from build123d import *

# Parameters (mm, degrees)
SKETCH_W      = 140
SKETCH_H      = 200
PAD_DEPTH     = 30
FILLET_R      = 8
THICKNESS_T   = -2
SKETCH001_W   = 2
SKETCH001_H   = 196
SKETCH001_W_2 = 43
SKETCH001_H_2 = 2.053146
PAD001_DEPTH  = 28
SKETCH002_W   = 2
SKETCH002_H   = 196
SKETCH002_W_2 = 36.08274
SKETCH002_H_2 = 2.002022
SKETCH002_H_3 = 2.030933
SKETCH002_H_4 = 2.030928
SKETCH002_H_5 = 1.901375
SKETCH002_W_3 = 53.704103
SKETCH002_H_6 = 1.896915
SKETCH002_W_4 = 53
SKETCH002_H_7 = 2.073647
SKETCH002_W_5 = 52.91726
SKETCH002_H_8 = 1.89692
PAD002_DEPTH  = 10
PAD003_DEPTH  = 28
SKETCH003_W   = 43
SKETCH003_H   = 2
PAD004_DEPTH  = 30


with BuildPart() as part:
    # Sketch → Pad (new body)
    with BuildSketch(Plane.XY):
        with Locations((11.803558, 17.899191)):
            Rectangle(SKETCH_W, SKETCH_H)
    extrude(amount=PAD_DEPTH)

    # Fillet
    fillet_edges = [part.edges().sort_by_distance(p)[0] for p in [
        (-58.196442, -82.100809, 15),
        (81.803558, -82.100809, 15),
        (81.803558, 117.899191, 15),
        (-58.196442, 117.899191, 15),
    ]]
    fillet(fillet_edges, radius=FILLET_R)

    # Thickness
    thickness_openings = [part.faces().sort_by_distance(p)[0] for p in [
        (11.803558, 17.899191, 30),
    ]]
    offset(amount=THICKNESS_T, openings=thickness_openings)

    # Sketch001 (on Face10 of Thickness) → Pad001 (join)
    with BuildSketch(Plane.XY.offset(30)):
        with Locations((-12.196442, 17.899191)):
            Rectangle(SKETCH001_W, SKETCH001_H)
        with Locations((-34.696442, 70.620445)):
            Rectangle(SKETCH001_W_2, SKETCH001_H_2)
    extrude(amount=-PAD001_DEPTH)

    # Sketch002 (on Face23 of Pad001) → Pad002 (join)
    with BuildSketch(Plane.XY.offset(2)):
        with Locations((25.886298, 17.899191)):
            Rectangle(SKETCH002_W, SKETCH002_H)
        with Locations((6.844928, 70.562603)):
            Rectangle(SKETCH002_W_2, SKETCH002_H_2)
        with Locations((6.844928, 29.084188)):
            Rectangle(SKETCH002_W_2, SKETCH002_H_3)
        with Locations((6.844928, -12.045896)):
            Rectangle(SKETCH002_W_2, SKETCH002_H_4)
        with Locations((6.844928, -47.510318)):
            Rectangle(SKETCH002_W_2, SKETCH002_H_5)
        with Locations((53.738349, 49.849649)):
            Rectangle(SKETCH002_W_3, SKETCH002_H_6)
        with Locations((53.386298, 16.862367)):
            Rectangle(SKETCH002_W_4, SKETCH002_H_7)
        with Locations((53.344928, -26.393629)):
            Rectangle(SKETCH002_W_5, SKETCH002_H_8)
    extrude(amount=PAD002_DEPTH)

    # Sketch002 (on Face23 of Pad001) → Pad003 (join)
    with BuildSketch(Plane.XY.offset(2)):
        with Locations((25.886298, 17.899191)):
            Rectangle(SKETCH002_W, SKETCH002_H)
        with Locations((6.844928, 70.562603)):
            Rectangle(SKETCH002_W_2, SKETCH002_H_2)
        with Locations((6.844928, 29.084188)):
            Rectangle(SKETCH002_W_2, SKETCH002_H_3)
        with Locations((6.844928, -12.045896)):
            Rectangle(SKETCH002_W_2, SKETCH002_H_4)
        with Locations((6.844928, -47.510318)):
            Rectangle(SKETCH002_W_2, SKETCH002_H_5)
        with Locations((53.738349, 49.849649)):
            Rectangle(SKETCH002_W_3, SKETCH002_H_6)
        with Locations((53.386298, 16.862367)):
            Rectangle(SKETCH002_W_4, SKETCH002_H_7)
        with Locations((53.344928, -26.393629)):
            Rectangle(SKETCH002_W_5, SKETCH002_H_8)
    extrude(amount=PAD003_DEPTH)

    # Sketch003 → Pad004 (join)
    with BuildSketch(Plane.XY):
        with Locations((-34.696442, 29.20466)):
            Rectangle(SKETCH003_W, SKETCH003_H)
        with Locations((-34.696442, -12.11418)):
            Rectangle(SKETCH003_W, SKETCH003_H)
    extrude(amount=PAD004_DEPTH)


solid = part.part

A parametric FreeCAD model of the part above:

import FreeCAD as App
import Part
import Sketcher
Q = App.Units.Quantity


def edges_at(feature, points):
    """Names of the edges that pass closest to the given points."""
    edges = feature.Shape.Edges
    near = lambda p: min(range(len(edges)), key=lambda i: edges[i].distToShape(Part.Vertex(*p))[0])
    return sorted({f"Edge{near(p) + 1}" for p in points})


def faces_at(feature, points):
    """Names of the faces that lie closest to the given points."""
    faces = feature.Shape.Faces
    near = lambda p: min(range(len(faces)), key=lambda i: faces[i].distToShape(Part.Vertex(*p))[0])
    return sorted({f"Face{near(p) + 1}" for p in points})


def add_polygon(sketch, points):
    """Adds a closed chain of lines whose ends are joined by coincident constraints."""
    first, n = sketch.GeometryCount, len(points)
    for a, b in zip(points, points[1:] + points[:1]):
        sketch.addGeometry(Part.LineSegment(App.Vector(*a, 0), App.Vector(*b, 0)), False)
    for i in range(n):
        sketch.addConstraint(Sketcher.Constraint("Coincident", first + i, 2, first + (i + 1) % n, 1))

doc = App.newDocument("Part")
body = doc.addObject("PartDesign::Body", "Body")

# Sketch on XY plane
sketch1 = body.newObject("Sketcher::SketchObject", "Sketch")
sketch1.AttachmentSupport = (doc.getObject("XY_Plane"), [""])
sketch1.MapMode = "FlatFace"
add_polygon(sketch1, [(-58, 118), (-58, -82), (82, -82), (82, 118)])  # lines 0-3
sketch1.addConstraint(Sketcher.Constraint("Vertical", 0))
sketch1.addConstraint(Sketcher.Constraint("Horizontal", 1))
sketch1.addConstraint(Sketcher.Constraint("Vertical", 2))
sketch1.addConstraint(Sketcher.Constraint("Horizontal", 3))
sketch1.addConstraint(Sketcher.Constraint("DistanceX", 1, 1, 1, 2, Q("140 mm")))
sketch1.addConstraint(Sketcher.Constraint("DistanceY", 0, 2, 0, 1, Q("200 mm")))
sketch1.addConstraint(Sketcher.Constraint("DistanceX", 0, 2, -1, 1, Q("58.196442 mm")))
sketch1.addConstraint(Sketcher.Constraint("DistanceY", 0, 2, -1, 1, Q("82.100809 mm")))
pad1 = body.newObject("PartDesign::Pad", "Pad")
pad1.Profile = sketch1
pad1.Length = 30
doc.recompute()

fillet = body.newObject("PartDesign::Fillet", "Fillet")
fillet.Base = (pad1, edges_at(pad1, [
    (-58.196, -82.101, 15),
    (81.804, -82.101, 15),
    (81.804, 117.899, 15),
    (-58.196, 117.899, 15),
]))
fillet.Radius = 8
doc.recompute()

thickness = body.newObject("PartDesign::Thickness", "Thickness")
thickness.Base = (fillet, faces_at(fillet, [(11.804, 17.899, 30)]))
thickness.Value = 2
thickness.Reversed = True
thickness.Join = "Arc"

# Sketch on XY plane
sketch2 = body.newObject("Sketcher::SketchObject", "Sketch001")
sketch2.AttachmentSupport = (doc.getObject("XY_Plane"), [""])
sketch2.MapMode = "FlatFace"
sketch2.AttachmentOffset = App.Placement(App.Vector(0, 0, 30), App.Rotation())
add_polygon(sketch2, [(-13.2, 69.6), (-13.2, -80.1), (-11.2, -80.1), (-11.2, 115.9), (-13.2, 115.9), (-13.2, 71.6), (-56.2, 71.6), (-56.2, 69.6)])  # lines 0-7
sketch2.addConstraint(Sketcher.Constraint("Vertical", 0))
sketch2.addConstraint(Sketcher.Constraint("Horizontal", 1))
sketch2.addConstraint(Sketcher.Constraint("Vertical", 2))
sketch2.addConstraint(Sketcher.Constraint("Horizontal", 3))
sketch2.addConstraint(Sketcher.Constraint("Vertical", 4))
sketch2.addConstraint(Sketcher.Constraint("Horizontal", 5))
sketch2.addConstraint(Sketcher.Constraint("Vertical", 6))
sketch2.addConstraint(Sketcher.Constraint("Horizontal", 7))
sketch2.addConstraint(Sketcher.Constraint("Vertical", 0, 2, 3, 2))
sketch2.addConstraint(Sketcher.Constraint("DistanceX", 1, 1, 1, 2, Q("2 mm")))
sketch2.addConstraint(Sketcher.Constraint("DistanceX", 5, 2, 5, 1, Q("43 mm")))
sketch2.addConstraint(Sketcher.Constraint("DistanceY", 2, 1, 2, 2, Q("196 mm")))
sketch2.addConstraint(Sketcher.Constraint("DistanceY", 0, 2, 0, 1, Q("149.694681 mm")))
sketch2.addConstraint(Sketcher.Constraint("DistanceY", 4, 2, 4, 1, Q("44.252173 mm")))
sketch2.addConstraint(Sketcher.Constraint("DistanceX", 0, 2, -1, 1, Q("13.196442 mm")))
sketch2.addConstraint(Sketcher.Constraint("DistanceY", 0, 2, -1, 1, Q("80.100809 mm")))
pad2 = body.newObject("PartDesign::Pad", "Pad001")
pad2.Profile = sketch2
pad2.Length = 28
pad2.Reversed = True

# Sketch on XY plane
sketch3 = body.newObject("Sketcher::SketchObject", "Sketch002")
sketch3.AttachmentSupport = (doc.getObject("XY_Plane"), [""])
sketch3.MapMode = "FlatFace"
sketch3.AttachmentOffset = App.Placement(App.Vector(0, 0, 2), App.Rotation())
add_polygon(sketch3, [(24.9, -48.5), (24.9, -80.1), (26.9, -80.1), (26.9, -27.3), (79.8, -27.3), (79.8, -25.4), (26.9, -25.4), (26.9, 15.8), (79.9, 15.8), (79.9, 17.9), (26.9, 17.9), (26.9, 48.9), (80.6, 48.9), (80.6, 50.8), (26.9, 50.8), (26.9, 115.9), (24.9, 115.9), (24.9, 71.6), (-11.2, 71.6), (-11.2, 69.6), (24.9, 69.6), (24.9, 30.1), (-11.2, 30.1), (-11.2, 28.1), (24.9, 28.1), (24.9, -11), (-11.2, -11), (-11.2, -13.1), (24.9, -13.1), (24.9, -46.6), (-11.2, -46.6), (-11.2, -48.5)])  # lines 0-31
sketch3.addConstraint(Sketcher.Constraint("Vertical", 0))
sketch3.addConstraint(Sketcher.Constraint("Horizontal", 1))
sketch3.addConstraint(Sketcher.Constraint("Vertical", 2))
sketch3.addConstraint(Sketcher.Constraint("Horizontal", 3))
sketch3.addConstraint(Sketcher.Constraint("Vertical", 4))
sketch3.addConstraint(Sketcher.Constraint("Horizontal", 5))
sketch3.addConstraint(Sketcher.Constraint("Vertical", 6))
sketch3.addConstraint(Sketcher.Constraint("Horizontal", 7))
sketch3.addConstraint(Sketcher.Constraint("Vertical", 8))
sketch3.addConstraint(Sketcher.Constraint("Horizontal", 9))
sketch3.addConstraint(Sketcher.Constraint("Vertical", 10))
sketch3.addConstraint(Sketcher.Constraint("Horizontal", 11))
sketch3.addConstraint(Sketcher.Constraint("Vertical", 12))
sketch3.addConstraint(Sketcher.Constraint("Horizontal", 13))
sketch3.addConstraint(Sketcher.Constraint("Vertical", 14))
sketch3.addConstraint(Sketcher.Constraint("Horizontal", 15))
sketch3.addConstraint(Sketcher.Constraint("Vertical", 16))
sketch3.addConstraint(Sketcher.Constraint("Horizontal", 17))
sketch3.addConstraint(Sketcher.Constraint("Vertical", 18))
sketch3.addConstraint(Sketcher.Constraint("Horizontal", 19))
sketch3.addConstraint(Sketcher.Constraint("Vertical", 20))
sketch3.addConstraint(Sketcher.Constraint("Horizontal", 21))
sketch3.addConstraint(Sketcher.Constraint("Vertical", 22))
sketch3.addConstraint(Sketcher.Constraint("Horizontal", 23))
sketch3.addConstraint(Sketcher.Constraint("Vertical", 24))
sketch3.addConstraint(Sketcher.Constraint("Horizontal", 25))
sketch3.addConstraint(Sketcher.Constraint("Vertical", 26))
sketch3.addConstraint(Sketcher.Constraint("Horizontal", 27))
sketch3.addConstraint(Sketcher.Constraint("Vertical", 28))
sketch3.addConstraint(Sketcher.Constraint("Horizontal", 29))
sketch3.addConstraint(Sketcher.Constraint("Vertical", 30))
sketch3.addConstraint(Sketcher.Constraint("Horizontal", 31))
sketch3.addConstraint(Sketcher.Constraint("Vertical", 2, 2, 5, 2))
sketch3.addConstraint(Sketcher.Constraint("Vertical", 6, 2, 9, 2))
sketch3.addConstraint(Sketcher.Constraint("Vertical", 10, 2, 13, 2))
sketch3.addConstraint(Sketcher.Constraint("Vertical", 0, 2, 15, 2))
sketch3.addConstraint(Sketcher.Constraint("Vertical", 16, 2, 19, 2))
sketch3.addConstraint(Sketcher.Constraint("Vertical", 18, 2, 21, 2))
sketch3.addConstraint(Sketcher.Constraint("Vertical", 20, 2, 23, 2))
sketch3.addConstraint(Sketcher.Constraint("Vertical", 22, 2, 25, 2))
sketch3.addConstraint(Sketcher.Constraint("Vertical", 24, 2, 27, 2))
sketch3.addConstraint(Sketcher.Constraint("Vertical", 26, 2, 29, 2))
sketch3.addConstraint(Sketcher.Constraint("DistanceX", 1, 1, 1, 2, Q("2 mm")))
sketch3.addConstraint(Sketcher.Constraint("DistanceX", 7, 1, 7, 2, Q("53 mm")))
sketch3.addConstraint(Sketcher.Constraint("DistanceY", 9, 2, 14, 2, Q("98 mm")))
sketch3.addConstraint(Sketcher.Constraint("DistanceY", 10, 1, 10, 2, Q("31.002001 mm")))
sketch3.addConstraint(Sketcher.Constraint("DistanceX", 3, 1, 3, 2, Q("52.91726 mm")))
sketch3.addConstraint(Sketcher.Constraint("DistanceX", 17, 2, 17, 1, Q("36.08274 mm")))
sketch3.addConstraint(Sketcher.Constraint("DistanceY", 2, 1, 2, 2, Q("52.75872 mm")))
sketch3.addConstraint(Sketcher.Constraint("DistanceY", 4, 1, 4, 2, Q("1.89692 mm")))
sketch3.addConstraint(Sketcher.Constraint("DistanceY", 18, 2, 18, 1, Q("2.002022 mm")))
sketch3.addConstraint(Sketcher.Constraint("DistanceY", 26, 2, 26, 1, Q("2.030928 mm")))
sketch3.addConstraint(Sketcher.Constraint("DistanceY", 28, 2, 28, 1, Q("33.49827 mm")))
sketch3.addConstraint(Sketcher.Constraint("DistanceX", -1, 1, 0, 2, Q("24.886298 mm")))
sketch3.addConstraint(Sketcher.Constraint("DistanceX", -1, 1, 11, 2, Q("80.590401 mm")))
sketch3.addConstraint(Sketcher.Constraint("DistanceY", 10, 2, 18, 2, Q("20.660401 mm")))
sketch3.addConstraint(Sketcher.Constraint("DistanceY", 0, 2, 0, 1, Q("31.639803 mm")))
sketch3.addConstraint(Sketcher.Constraint("DistanceY", 6, 1, 6, 2, Q("41.270713 mm")))
sketch3.addConstraint(Sketcher.Constraint("DistanceY", 8, 1, 8, 2, Q("2.073647 mm")))
sketch3.addConstraint(Sketcher.Constraint("DistanceY", 12, 1, 12, 2, Q("1.896915 mm")))
sketch3.addConstraint(Sketcher.Constraint("DistanceY", 20, 2, 20, 1, Q("39.461938 mm")))
sketch3.addConstraint(Sketcher.Constraint("DistanceY", 22, 2, 22, 1, Q("2.030933 mm")))
sketch3.addConstraint(Sketcher.Constraint("DistanceY", 24, 2, 24, 1, Q("39.099153 mm")))
sketch3.addConstraint(Sketcher.Constraint("DistanceY", 0, 2, -1, 1, Q("80.100809 mm")))
pad3 = body.newObject("PartDesign::Pad", "Pad002")
pad3.Profile = sketch3
pad3.Length = 10

# Sketch on XY plane
sketch4 = body.newObject("Sketcher::SketchObject", "Sketch003")
sketch4.AttachmentSupport = (doc.getObject("XY_Plane"), [""])
sketch4.MapMode = "FlatFace"
sketch4.AttachmentOffset = App.Placement(App.Vector(0, 0, 2), App.Rotation())
add_polygon(sketch4, [(24.9, -48.5), (24.9, -80.1), (26.9, -80.1), (26.9, -27.3), (79.8, -27.3), (79.8, -25.4), (26.9, -25.4), (26.9, 15.8), (79.9, 15.8), (79.9, 17.9), (26.9, 17.9), (26.9, 48.9), (80.6, 48.9), (80.6, 50.8), (26.9, 50.8), (26.9, 115.9), (24.9, 115.9), (24.9, 71.6), (-11.2, 71.6), (-11.2, 69.6), (24.9, 69.6), (24.9, 30.1), (-11.2, 30.1), (-11.2, 28.1), (24.9, 28.1), (24.9, -11), (-11.2, -11), (-11.2, -13.1), (24.9, -13.1), (24.9, -46.6), (-11.2, -46.6), (-11.2, -48.5)])  # lines 0-31
sketch4.addConstraint(Sketcher.Constraint("Vertical", 0))
sketch4.addConstraint(Sketcher.Constraint("Horizontal", 1))
sketch4.addConstraint(Sketcher.Constraint("Vertical", 2))
sketch4.addConstraint(Sketcher.Constraint("Horizontal", 3))
sketch4.addConstraint(Sketcher.Constraint("Vertical", 4))
sketch4.addConstraint(Sketcher.Constraint("Horizontal", 5))
sketch4.addConstraint(Sketcher.Constraint("Vertical", 6))
sketch4.addConstraint(Sketcher.Constraint("Horizontal", 7))
sketch4.addConstraint(Sketcher.Constraint("Vertical", 8))
sketch4.addConstraint(Sketcher.Constraint("Horizontal", 9))
sketch4.addConstraint(Sketcher.Constraint("Vertical", 10))
sketch4.addConstraint(Sketcher.Constraint("Horizontal", 11))
sketch4.addConstraint(Sketcher.Constraint("Vertical", 12))
sketch4.addConstraint(Sketcher.Constraint("Horizontal", 13))
sketch4.addConstraint(Sketcher.Constraint("Vertical", 14))
sketch4.addConstraint(Sketcher.Constraint("Horizontal", 15))
sketch4.addConstraint(Sketcher.Constraint("Vertical", 16))
sketch4.addConstraint(Sketcher.Constraint("Horizontal", 17))
sketch4.addConstraint(Sketcher.Constraint("Vertical", 18))
sketch4.addConstraint(Sketcher.Constraint("Horizontal", 19))
sketch4.addConstraint(Sketcher.Constraint("Vertical", 20))
sketch4.addConstraint(Sketcher.Constraint("Horizontal", 21))
sketch4.addConstraint(Sketcher.Constraint("Vertical", 22))
sketch4.addConstraint(Sketcher.Constraint("Horizontal", 23))
sketch4.addConstraint(Sketcher.Constraint("Vertical", 24))
sketch4.addConstraint(Sketcher.Constraint("Horizontal", 25))
sketch4.addConstraint(Sketcher.Constraint("Vertical", 26))
sketch4.addConstraint(Sketcher.Constraint("Horizontal", 27))
sketch4.addConstraint(Sketcher.Constraint("Vertical", 28))
sketch4.addConstraint(Sketcher.Constraint("Horizontal", 29))
sketch4.addConstraint(Sketcher.Constraint("Vertical", 30))
sketch4.addConstraint(Sketcher.Constraint("Horizontal", 31))
sketch4.addConstraint(Sketcher.Constraint("Vertical", 2, 2, 5, 2))
sketch4.addConstraint(Sketcher.Constraint("Vertical", 6, 2, 9, 2))
sketch4.addConstraint(Sketcher.Constraint("Vertical", 10, 2, 13, 2))
sketch4.addConstraint(Sketcher.Constraint("Vertical", 0, 2, 15, 2))
sketch4.addConstraint(Sketcher.Constraint("Vertical", 16, 2, 19, 2))
sketch4.addConstraint(Sketcher.Constraint("Vertical", 18, 2, 21, 2))
sketch4.addConstraint(Sketcher.Constraint("Vertical", 20, 2, 23, 2))
sketch4.addConstraint(Sketcher.Constraint("Vertical", 22, 2, 25, 2))
sketch4.addConstraint(Sketcher.Constraint("Vertical", 24, 2, 27, 2))
sketch4.addConstraint(Sketcher.Constraint("Vertical", 26, 2, 29, 2))
sketch4.addConstraint(Sketcher.Constraint("DistanceX", 1, 1, 1, 2, Q("2 mm")))
sketch4.addConstraint(Sketcher.Constraint("DistanceX", 7, 1, 7, 2, Q("53 mm")))
sketch4.addConstraint(Sketcher.Constraint("DistanceY", 9, 2, 14, 2, Q("98 mm")))
sketch4.addConstraint(Sketcher.Constraint("DistanceY", 10, 1, 10, 2, Q("31.002001 mm")))
sketch4.addConstraint(Sketcher.Constraint("DistanceX", 3, 1, 3, 2, Q("52.91726 mm")))
sketch4.addConstraint(Sketcher.Constraint("DistanceX", 17, 2, 17, 1, Q("36.08274 mm")))
sketch4.addConstraint(Sketcher.Constraint("DistanceY", 2, 1, 2, 2, Q("52.75872 mm")))
sketch4.addConstraint(Sketcher.Constraint("DistanceY", 4, 1, 4, 2, Q("1.89692 mm")))
sketch4.addConstraint(Sketcher.Constraint("DistanceY", 18, 2, 18, 1, Q("2.002022 mm")))
sketch4.addConstraint(Sketcher.Constraint("DistanceY", 26, 2, 26, 1, Q("2.030928 mm")))
sketch4.addConstraint(Sketcher.Constraint("DistanceY", 28, 2, 28, 1, Q("33.49827 mm")))
sketch4.addConstraint(Sketcher.Constraint("DistanceX", -1, 1, 0, 2, Q("24.886298 mm")))
sketch4.addConstraint(Sketcher.Constraint("DistanceX", -1, 1, 11, 2, Q("80.590401 mm")))
sketch4.addConstraint(Sketcher.Constraint("DistanceY", 10, 2, 18, 2, Q("20.660401 mm")))
sketch4.addConstraint(Sketcher.Constraint("DistanceY", 0, 2, 0, 1, Q("31.639803 mm")))
sketch4.addConstraint(Sketcher.Constraint("DistanceY", 6, 1, 6, 2, Q("41.270713 mm")))
sketch4.addConstraint(Sketcher.Constraint("DistanceY", 8, 1, 8, 2, Q("2.073647 mm")))
sketch4.addConstraint(Sketcher.Constraint("DistanceY", 12, 1, 12, 2, Q("1.896915 mm")))
sketch4.addConstraint(Sketcher.Constraint("DistanceY", 20, 2, 20, 1, Q("39.461938 mm")))
sketch4.addConstraint(Sketcher.Constraint("DistanceY", 22, 2, 22, 1, Q("2.030933 mm")))
sketch4.addConstraint(Sketcher.Constraint("DistanceY", 24, 2, 24, 1, Q("39.099153 mm")))
sketch4.addConstraint(Sketcher.Constraint("DistanceY", 0, 2, -1, 1, Q("80.100809 mm")))
pad4 = body.newObject("PartDesign::Pad", "Pad003")
pad4.Profile = sketch4
pad4.Length = 28

# Sketch on XY plane
sketch5 = body.newObject("Sketcher::SketchObject", "Sketch004")
sketch5.AttachmentSupport = (doc.getObject("XY_Plane"), [""])
sketch5.MapMode = "FlatFace"
add_polygon(sketch5, [(-56.2, 30.2), (-56.2, 28.2), (-13.2, 28.2), (-13.2, 30.2)])  # lines 0-3
add_polygon(sketch5, [(-56.2, -11.1), (-56.2, -13.1), (-13.2, -13.1), (-13.2, -11.1)])  # lines 4-7
sketch5.addConstraint(Sketcher.Constraint("Vertical", 0))
sketch5.addConstraint(Sketcher.Constraint("Horizontal", 1))
sketch5.addConstraint(Sketcher.Constraint("Vertical", 2))
sketch5.addConstraint(Sketcher.Constraint("Horizontal", 3))
sketch5.addConstraint(Sketcher.Constraint("Vertical", 4))
sketch5.addConstraint(Sketcher.Constraint("Horizontal", 5))
sketch5.addConstraint(Sketcher.Constraint("Vertical", 6))
sketch5.addConstraint(Sketcher.Constraint("Horizontal", 7))
sketch5.addConstraint(Sketcher.Constraint("Vertical", 3, 2, 4, 2))
sketch5.addConstraint(Sketcher.Constraint("Vertical", 2, 2, 5, 2))
sketch5.addConstraint(Sketcher.Constraint("Equal", 2, 4))
sketch5.addConstraint(Sketcher.Constraint("DistanceX", 1, 1, 1, 2, Q("43 mm")))
sketch5.addConstraint(Sketcher.Constraint("DistanceY", 0, 2, 0, 1, Q("2 mm")))
sketch5.addConstraint(Sketcher.Constraint("DistanceX", 0, 2, -1, 1, Q("56.196442 mm")))
sketch5.addConstraint(Sketcher.Constraint("DistanceY", -1, 1, 0, 2, Q("28.20466 mm")))
sketch5.addConstraint(Sketcher.Constraint("DistanceY", 4, 2, -1, 1, Q("13.11418 mm")))
pad5 = body.newObject("PartDesign::Pad", "Pad004")
pad5.Profile = sketch5
pad5.Length = 30

doc.recompute()
